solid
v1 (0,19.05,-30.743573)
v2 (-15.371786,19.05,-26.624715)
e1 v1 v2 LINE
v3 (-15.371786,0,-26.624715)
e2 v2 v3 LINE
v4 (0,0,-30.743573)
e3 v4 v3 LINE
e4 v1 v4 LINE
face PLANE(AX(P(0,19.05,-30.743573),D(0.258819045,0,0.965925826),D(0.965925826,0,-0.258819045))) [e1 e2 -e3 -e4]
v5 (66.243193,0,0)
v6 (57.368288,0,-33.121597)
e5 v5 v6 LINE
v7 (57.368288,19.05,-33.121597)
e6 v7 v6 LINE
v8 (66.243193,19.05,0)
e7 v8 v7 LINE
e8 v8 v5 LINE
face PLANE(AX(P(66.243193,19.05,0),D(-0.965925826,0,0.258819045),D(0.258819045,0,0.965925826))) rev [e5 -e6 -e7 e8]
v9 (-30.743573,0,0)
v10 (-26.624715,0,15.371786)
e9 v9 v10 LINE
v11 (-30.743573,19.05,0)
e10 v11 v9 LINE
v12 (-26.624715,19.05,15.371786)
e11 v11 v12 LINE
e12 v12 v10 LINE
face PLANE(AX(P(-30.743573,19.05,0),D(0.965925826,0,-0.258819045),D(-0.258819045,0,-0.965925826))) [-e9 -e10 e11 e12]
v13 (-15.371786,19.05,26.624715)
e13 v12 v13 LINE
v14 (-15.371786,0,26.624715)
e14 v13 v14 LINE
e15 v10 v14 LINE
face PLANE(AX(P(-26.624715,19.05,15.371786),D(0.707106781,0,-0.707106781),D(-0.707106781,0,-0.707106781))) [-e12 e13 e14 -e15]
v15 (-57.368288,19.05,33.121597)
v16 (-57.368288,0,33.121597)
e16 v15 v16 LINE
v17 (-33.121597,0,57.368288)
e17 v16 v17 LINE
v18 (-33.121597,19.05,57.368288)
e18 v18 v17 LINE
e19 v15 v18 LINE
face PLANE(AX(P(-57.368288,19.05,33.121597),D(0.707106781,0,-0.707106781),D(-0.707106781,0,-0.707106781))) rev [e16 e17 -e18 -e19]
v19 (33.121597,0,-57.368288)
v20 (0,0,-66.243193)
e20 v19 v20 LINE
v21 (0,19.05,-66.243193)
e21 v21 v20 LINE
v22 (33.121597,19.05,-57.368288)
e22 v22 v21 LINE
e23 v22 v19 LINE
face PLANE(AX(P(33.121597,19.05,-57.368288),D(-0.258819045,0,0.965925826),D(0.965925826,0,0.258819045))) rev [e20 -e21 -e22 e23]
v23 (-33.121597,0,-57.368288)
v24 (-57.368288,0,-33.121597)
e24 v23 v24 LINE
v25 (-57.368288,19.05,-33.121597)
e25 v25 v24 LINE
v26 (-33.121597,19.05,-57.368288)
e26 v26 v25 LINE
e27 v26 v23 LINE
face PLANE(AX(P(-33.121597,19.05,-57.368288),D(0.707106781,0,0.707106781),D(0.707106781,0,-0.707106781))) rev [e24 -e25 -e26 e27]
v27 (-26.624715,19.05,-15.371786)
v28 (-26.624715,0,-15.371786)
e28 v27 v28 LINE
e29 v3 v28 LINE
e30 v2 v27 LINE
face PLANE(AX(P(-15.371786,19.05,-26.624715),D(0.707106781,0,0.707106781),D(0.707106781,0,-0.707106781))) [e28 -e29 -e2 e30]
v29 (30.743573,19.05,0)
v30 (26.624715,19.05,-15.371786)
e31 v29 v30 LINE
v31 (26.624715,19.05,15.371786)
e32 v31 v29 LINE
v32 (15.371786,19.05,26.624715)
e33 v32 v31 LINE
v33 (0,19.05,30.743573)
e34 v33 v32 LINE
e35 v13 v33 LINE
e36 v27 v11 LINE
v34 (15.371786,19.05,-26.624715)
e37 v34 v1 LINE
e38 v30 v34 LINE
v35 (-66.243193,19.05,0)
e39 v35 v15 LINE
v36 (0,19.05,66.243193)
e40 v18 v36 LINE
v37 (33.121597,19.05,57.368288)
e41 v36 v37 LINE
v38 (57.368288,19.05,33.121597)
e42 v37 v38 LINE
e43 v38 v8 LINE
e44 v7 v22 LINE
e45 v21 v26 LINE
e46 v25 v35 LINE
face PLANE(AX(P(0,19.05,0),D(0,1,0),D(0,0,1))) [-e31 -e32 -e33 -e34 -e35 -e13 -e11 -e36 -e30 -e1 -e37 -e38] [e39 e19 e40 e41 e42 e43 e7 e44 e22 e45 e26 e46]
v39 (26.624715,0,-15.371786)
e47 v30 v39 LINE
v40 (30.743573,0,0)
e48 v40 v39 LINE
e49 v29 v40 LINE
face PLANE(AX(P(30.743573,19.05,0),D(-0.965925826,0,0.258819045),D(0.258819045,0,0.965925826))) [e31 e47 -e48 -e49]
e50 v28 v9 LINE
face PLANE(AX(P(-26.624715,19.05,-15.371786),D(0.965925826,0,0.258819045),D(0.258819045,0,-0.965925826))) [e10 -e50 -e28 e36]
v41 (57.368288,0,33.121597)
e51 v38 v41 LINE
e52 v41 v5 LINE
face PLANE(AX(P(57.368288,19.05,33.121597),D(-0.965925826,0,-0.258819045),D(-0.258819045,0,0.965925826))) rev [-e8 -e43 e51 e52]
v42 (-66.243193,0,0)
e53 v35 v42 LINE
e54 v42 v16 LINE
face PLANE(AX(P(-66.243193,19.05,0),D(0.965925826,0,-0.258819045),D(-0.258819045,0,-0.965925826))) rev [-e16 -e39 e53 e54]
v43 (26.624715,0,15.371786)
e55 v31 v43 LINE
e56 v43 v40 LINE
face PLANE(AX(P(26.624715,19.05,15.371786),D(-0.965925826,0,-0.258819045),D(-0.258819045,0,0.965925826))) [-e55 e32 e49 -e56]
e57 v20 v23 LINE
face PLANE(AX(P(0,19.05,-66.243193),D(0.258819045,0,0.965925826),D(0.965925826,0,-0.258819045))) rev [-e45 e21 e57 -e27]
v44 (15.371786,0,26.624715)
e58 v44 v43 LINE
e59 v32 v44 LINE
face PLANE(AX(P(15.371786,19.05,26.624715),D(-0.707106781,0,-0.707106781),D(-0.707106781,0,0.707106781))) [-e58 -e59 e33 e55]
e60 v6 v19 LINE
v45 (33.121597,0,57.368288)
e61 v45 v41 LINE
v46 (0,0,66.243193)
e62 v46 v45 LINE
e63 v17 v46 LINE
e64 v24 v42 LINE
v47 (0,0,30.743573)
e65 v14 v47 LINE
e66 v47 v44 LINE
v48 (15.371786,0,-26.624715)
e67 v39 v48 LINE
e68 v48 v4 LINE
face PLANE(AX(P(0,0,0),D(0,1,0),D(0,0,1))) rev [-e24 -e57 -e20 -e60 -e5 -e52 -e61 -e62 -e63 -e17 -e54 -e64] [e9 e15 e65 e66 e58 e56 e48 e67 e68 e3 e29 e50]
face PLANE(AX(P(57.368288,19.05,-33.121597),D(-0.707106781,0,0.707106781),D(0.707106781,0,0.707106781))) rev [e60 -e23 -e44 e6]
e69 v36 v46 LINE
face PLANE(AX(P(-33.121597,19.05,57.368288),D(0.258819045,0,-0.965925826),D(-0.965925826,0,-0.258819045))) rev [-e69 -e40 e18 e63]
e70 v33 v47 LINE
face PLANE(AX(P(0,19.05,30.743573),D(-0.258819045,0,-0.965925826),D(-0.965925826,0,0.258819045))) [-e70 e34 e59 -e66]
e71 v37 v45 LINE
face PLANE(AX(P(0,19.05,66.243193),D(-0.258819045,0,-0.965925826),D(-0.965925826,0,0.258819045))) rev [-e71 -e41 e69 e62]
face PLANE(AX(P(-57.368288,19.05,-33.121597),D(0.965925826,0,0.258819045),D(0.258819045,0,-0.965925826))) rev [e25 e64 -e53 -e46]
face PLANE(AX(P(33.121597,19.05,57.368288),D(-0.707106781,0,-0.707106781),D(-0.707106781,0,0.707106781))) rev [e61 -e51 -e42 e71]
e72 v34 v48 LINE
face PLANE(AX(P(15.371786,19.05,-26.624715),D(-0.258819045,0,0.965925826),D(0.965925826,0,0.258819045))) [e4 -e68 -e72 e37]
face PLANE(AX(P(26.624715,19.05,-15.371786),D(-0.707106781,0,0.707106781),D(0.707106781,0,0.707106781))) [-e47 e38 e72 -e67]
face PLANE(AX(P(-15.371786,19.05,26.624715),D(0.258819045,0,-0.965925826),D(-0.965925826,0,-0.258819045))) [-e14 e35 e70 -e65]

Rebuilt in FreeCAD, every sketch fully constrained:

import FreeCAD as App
import Part
import Sketcher

V = App.Vector
Q = App.Units.Quantity

doc = App.newDocument("Part")
body = doc.addObject("PartDesign::Body", "Body")

sketch1 = doc.addObject("Sketcher::SketchObject", "Sketch")
body.addObject(sketch1)
sketch1.AttachmentSupport = (doc.XZ_Plane, [""])
sketch1.MapMode = "FlatFace"
sketch1.addGeometry([
    Part.LineSegment(V(66, 0, 0), V(57, -33, 0)),
    Part.LineSegment(V(57, -33, 0), V(33, -57, 0)),
    Part.LineSegment(V(33, -57, 0), V(0, -66, 0)),
    Part.LineSegment(V(0, -66, 0), V(-33, -57, 0)),
    Part.LineSegment(V(-33, -57, 0), V(-57, -33, 0)),
    Part.LineSegment(V(-57, -33, 0), V(-66, 0, 0)),
    Part.LineSegment(V(-66, 0, 0), V(-57, 33, 0)),
    Part.LineSegment(V(-57, 33, 0), V(-33, 57, 0)),
    Part.LineSegment(V(-33, 57, 0), V(0, 66, 0)),
    Part.LineSegment(V(0, 66, 0), V(33, 57, 0)),
    Part.LineSegment(V(33, 57, 0), V(57, 33, 0)),
    Part.LineSegment(V(57, 33, 0), V(66, 0, 0)),
    Part.LineSegment(V(27, -15, 0), V(31, 0, 0)),
    Part.LineSegment(V(31, 0, 0), V(27, 15, 0)),
    Part.LineSegment(V(27, 15, 0), V(15, 27, 0)),
    Part.LineSegment(V(15, 27, 0), V(0, 31, 0)),
    Part.LineSegment(V(0, 31, 0), V(-15, 27, 0)),
    Part.LineSegment(V(-15, 27, 0), V(-27, 15, 0)),
    Part.LineSegment(V(-27, 15, 0), V(-31, 0, 0)),
    Part.LineSegment(V(-31, 0, 0), V(-27, -15, 0)),
    Part.LineSegment(V(-27, -15, 0), V(-15, -27, 0)),
    Part.LineSegment(V(-15, -27, 0), V(0, -31, 0)),
    Part.LineSegment(V(0, -31, 0), V(15, -27, 0)),
    Part.LineSegment(V(15, -27, 0), V(27, -15, 0)),
], False)
sketch1.addConstraint([
    Sketcher.Constraint("Coincident", 0, 2, 1, 1),
    Sketcher.Constraint("Coincident", 1, 2, 2, 1),
    Sketcher.Constraint("Coincident", 2, 2, 3, 1),
    Sketcher.Constraint("Coincident", 3, 2, 4, 1),
    Sketcher.Constraint("Coincident", 4, 2, 5, 1),
    Sketcher.Constraint("Coincident", 5, 2, 6, 1),
    Sketcher.Constraint("Coincident", 6, 2, 7, 1),
    Sketcher.Constraint("Coincident", 7, 2, 8, 1),
    Sketcher.Constraint("Coincident", 8, 2, 9, 1),
    Sketcher.Constraint("Coincident", 9, 2, 10, 1),
    Sketcher.Constraint("Coincident", 10, 2, 11, 1),
    Sketcher.Constraint("Coincident", 11, 2, 0, 1),
    Sketcher.Constraint("Coincident", 12, 2, 13, 1),
    Sketcher.Constraint("Coincident", 13, 2, 14, 1),
    Sketcher.Constraint("Coincident", 14, 2, 15, 1),
    Sketcher.Constraint("Coincident", 15, 2, 16, 1),
    Sketcher.Constraint("Coincident", 16, 2, 17, 1),
    Sketcher.Constraint("Coincident", 17, 2, 18, 1),
    Sketcher.Constraint("Coincident", 18, 2, 19, 1),
    Sketcher.Constraint("Coincident", 19, 2, 20, 1),
    Sketcher.Constraint("Coincident", 20, 2, 21, 1),
    Sketcher.Constraint("Coincident", 21, 2, 22, 1),
    Sketcher.Constraint("Coincident", 22, 2, 23, 1),
    Sketcher.Constraint("Coincident", 23, 2, 12, 1),
    Sketcher.Constraint("Symmetric", 0, 2, 6, 2, -1, 1),
    Sketcher.Constraint("Symmetric", 1, 2, 7, 2, -1, 1),
    Sketcher.Constraint("Symmetric", 2, 2, 8, 2, -1, 1),
    Sketcher.Constraint("Symmetric", 3, 2, 9, 2, -1, 1),
    Sketcher.Constraint("Symmetric", 4, 2, 10, 2, -1, 1),
    Sketcher.Constraint("Symmetric", 5, 2, 11, 2, -1, 1),
    Sketcher.Constraint("Symmetric", 12, 2, 18, 2, -1, 1),
    Sketcher.Constraint("Symmetric", 13, 2, 19, 2, -1, 1),
    Sketcher.Constraint("Symmetric", 14, 2, 20, 2, -1, 1),
    Sketcher.Constraint("Symmetric", 15, 2, 21, 2, -1, 1),
    Sketcher.Constraint("Symmetric", 16, 2, 22, 2, -1, 1),
    Sketcher.Constraint("Symmetric", 17, 2, 23, 2, -1, 1),
    Sketcher.Constraint("Symmetric", 1, 2, 3, 2, -2),
    Sketcher.Constraint("Symmetric", 0, 2, 4, 2, -2),
    Sketcher.Constraint("Symmetric", 14, 2, 16, 2, -2),
    Sketcher.Constraint("Symmetric", 13, 2, 17, 2, -2),
    Sketcher.Constraint("PointOnObject", 2, 2, -2),
    Sketcher.Constraint("PointOnObject", 5, 2, -1),
    Sketcher.Constraint("PointOnObject", 12, 2, -1),
    Sketcher.Constraint("PointOnObject", 15, 2, -2),
    Sketcher.Constraint("Perpendicular", 0, 3),
    Sketcher.Constraint("Perpendicular", 1, 4),
    Sketcher.Constraint("Perpendicular", 9, 12),
    Sketcher.Constraint("Parallel", 10, 14),
    Sketcher.Constraint("Perpendicular", 12, 15),
    Sketcher.Constraint("Equal", 0, 1),
    Sketcher.Constraint("Equal", 1, 2),
    Sketcher.Constraint("Equal", 13, 14),
    Sketcher.Constraint("Equal", 14, 15),
    Sketcher.Constraint("Angle", 0, Q("-105 deg")),
    Sketcher.Constraint("Distance", 0, Q("1.35 in")),
    Sketcher.Constraint("DistanceY", 13, 2, 9, 2, 41.996502),
])
pad1 = doc.addObject("PartDesign::Pad", "Pad")
body.addObject(pad1)
pad1.Profile = sketch1
pad1.Length = Q("0.75 in")
pad1.Reversed = True

doc.recompute()
